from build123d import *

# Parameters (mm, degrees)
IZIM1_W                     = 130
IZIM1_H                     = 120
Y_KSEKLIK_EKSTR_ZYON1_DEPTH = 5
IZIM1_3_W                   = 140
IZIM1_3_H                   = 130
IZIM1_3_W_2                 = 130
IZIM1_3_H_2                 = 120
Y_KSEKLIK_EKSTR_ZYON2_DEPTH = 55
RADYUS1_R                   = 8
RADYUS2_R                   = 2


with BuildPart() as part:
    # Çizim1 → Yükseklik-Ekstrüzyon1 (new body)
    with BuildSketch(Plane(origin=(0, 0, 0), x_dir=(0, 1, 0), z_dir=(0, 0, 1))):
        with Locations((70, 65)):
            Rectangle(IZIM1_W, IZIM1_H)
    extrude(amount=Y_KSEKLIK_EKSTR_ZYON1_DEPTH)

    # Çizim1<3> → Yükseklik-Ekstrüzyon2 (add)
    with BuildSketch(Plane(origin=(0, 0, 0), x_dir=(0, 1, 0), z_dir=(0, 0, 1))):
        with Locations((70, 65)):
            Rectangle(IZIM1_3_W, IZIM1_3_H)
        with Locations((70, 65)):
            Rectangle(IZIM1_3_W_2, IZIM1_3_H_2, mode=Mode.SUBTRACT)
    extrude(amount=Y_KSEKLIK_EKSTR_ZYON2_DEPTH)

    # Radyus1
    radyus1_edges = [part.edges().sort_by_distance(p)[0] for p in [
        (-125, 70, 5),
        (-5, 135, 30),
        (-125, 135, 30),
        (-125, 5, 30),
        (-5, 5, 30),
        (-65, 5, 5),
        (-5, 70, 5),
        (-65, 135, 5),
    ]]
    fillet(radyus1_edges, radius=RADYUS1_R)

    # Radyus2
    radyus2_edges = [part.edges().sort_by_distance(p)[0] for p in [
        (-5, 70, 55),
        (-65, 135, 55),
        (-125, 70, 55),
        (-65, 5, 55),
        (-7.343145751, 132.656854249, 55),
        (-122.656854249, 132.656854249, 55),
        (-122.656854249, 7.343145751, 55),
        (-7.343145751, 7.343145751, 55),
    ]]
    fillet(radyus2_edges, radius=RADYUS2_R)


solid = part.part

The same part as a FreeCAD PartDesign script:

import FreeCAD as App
import Part
import Sketcher
from FreeCAD import Vector


def edges_at(feature, points):
    """Names of the edges that pass closest to the given points."""
    edges = feature.Shape.Edges
    near = lambda p: min(range(len(edges)), key=lambda i: edges[i].distToShape(Part.Vertex(*p))[0])
    return sorted({f"Edge{near(p) + 1}" for p in points})

doc = App.newDocument("Part")
body = doc.addObject("PartDesign::Body", "Body")

# Sketch on XY plane
sketch1 = doc.addObject("Sketcher::SketchObject", "Sketch")
body.addObject(sketch1)
sketch1.AttachmentSupport = (doc.XY_Plane, [""])
sketch1.MapMode = "FlatFace"
sketch1.addGeometry(Part.LineSegment(Vector(-125, 5, 0), Vector(-5, 5, 0)), False)
sketch1.addGeometry(Part.LineSegment(Vector(-5, 5, 0), Vector(-5, 135, 0)), False)
sketch1.addGeometry(Part.LineSegment(Vector(-5, 135, 0), Vector(-125, 135, 0)), False)
sketch1.addGeometry(Part.LineSegment(Vector(-125, 135, 0), Vector(-125, 5, 0)), False)
sketch1.addConstraint(Sketcher.Constraint("Coincident", 0, 2, 1, 1))
sketch1.addConstraint(Sketcher.Constraint("Coincident", 1, 2, 2, 1))
sketch1.addConstraint(Sketcher.Constraint("Coincident", 2, 2, 3, 1))
sketch1.addConstraint(Sketcher.Constraint("Coincident", 3, 2, 0, 1))
sketch1.addConstraint(Sketcher.Constraint("Horizontal", 0))
sketch1.addConstraint(Sketcher.Constraint("Vertical", 1))
sketch1.addConstraint(Sketcher.Constraint("Horizontal", 2))
sketch1.addConstraint(Sketcher.Constraint("Vertical", 3))
sketch1.addConstraint(Sketcher.Constraint("DistanceX", 0, 1, 0, 2, 120.0))
sketch1.addConstraint(Sketcher.Constraint("DistanceY", 1, 1, 1, 2, 130.0))
sketch1.addConstraint(Sketcher.Constraint("DistanceX", 0, 2, -1, 1, 5.0))
sketch1.addConstraint(Sketcher.Constraint("DistanceY", -1, 1, 0, 2, 5.0))
pad1 = doc.addObject("PartDesign::Pad", "Pad")
body.addObject(pad1)
pad1.Profile = sketch1
pad1.Length = 5

# Sketch on XY plane
sketch2 = doc.addObject("Sketcher::SketchObject", "Sketch001")
body.addObject(sketch2)
sketch2.AttachmentSupport = (doc.XY_Plane, [""])
sketch2.MapMode = "FlatFace"
sketch2.addGeometry(Part.LineSegment(Vector(-130, 0, 0), Vector(0, 0, 0)), False)
sketch2.addGeometry(Part.LineSegment(Vector(0, 0, 0), Vector(0, 140, 0)), False)
sketch2.addGeometry(Part.LineSegment(Vector(0, 140, 0), Vector(-130, 140, 0)), False)
sketch2.addGeometry(Part.LineSegment(Vector(-130, 140, 0), Vector(-130, 0, 0)), False)
sketch2.addGeometry(Part.LineSegment(Vector(-5, 135, 0), Vector(-5, 5, 0)), False)
sketch2.addGeometry(Part.LineSegment(Vector(-5, 5, 0), Vector(-125, 5, 0)), False)
sketch2.addGeometry(Part.LineSegment(Vector(-125, 5, 0), Vector(-125, 135, 0)), False)
sketch2.addGeometry(Part.LineSegment(Vector(-125, 135, 0), Vector(-5, 135, 0)), False)
sketch2.addConstraint(Sketcher.Constraint("Coincident", 0, 2, 1, 1))
sketch2.addConstraint(Sketcher.Constraint("Coincident", 1, 2, 2, 1))
sketch2.addConstraint(Sketcher.Constraint("Coincident", 2, 2, 3, 1))
sketch2.addConstraint(Sketcher.Constraint("Coincident", 3, 2, 0, 1))
sketch2.addConstraint(Sketcher.Constraint("Coincident", 4, 2, 5, 1))
sketch2.addConstraint(Sketcher.Constraint("Coincident", 5, 2, 6, 1))
sketch2.addConstraint(Sketcher.Constraint("Coincident", 6, 2, 7, 1))
sketch2.addConstraint(Sketcher.Constraint("Coincident", 7, 2, 4, 1))
sketch2.addConstraint(Sketcher.Constraint("Horizontal", 0))
sketch2.addConstraint(Sketcher.Constraint("Vertical", 1))
sketch2.addConstraint(Sketcher.Constraint("Horizontal", 2))
sketch2.addConstraint(Sketcher.Constraint("Vertical", 3))
sketch2.addConstraint(Sketcher.Constraint("Vertical", 4))
sketch2.addConstraint(Sketcher.Constraint("Horizontal", 5))
sketch2.addConstraint(Sketcher.Constraint("Vertical", 6))
sketch2.addConstraint(Sketcher.Constraint("Horizontal", 7))
sketch2.addConstraint(Sketcher.Constraint("Coincident", 0, 2, -1, 1))
sketch2.addConstraint(Sketcher.Constraint("Equal", 2, 4))
sketch2.addConstraint(Sketcher.Constraint("DistanceX", 0, 1, 0, 2, 130.0))
sketch2.addConstraint(Sketcher.Constraint("DistanceX", 5, 2, 5, 1, 120.0))
sketch2.addConstraint(Sketcher.Constraint("DistanceY", 1, 1, 1, 2, 140.0))
sketch2.addConstraint(Sketcher.Constraint("DistanceX", 4, 2, -1, 1, 5.0))
sketch2.addConstraint(Sketcher.Constraint("DistanceY", -1, 1, 4, 2, 5.0))
pad2 = doc.addObject("PartDesign::Pad", "Pad001")
body.addObject(pad2)
pad2.Profile = sketch2
pad2.Length = 55
doc.recompute()

fillet = doc.addObject("PartDesign::Fillet", "Fillet")
body.addObject(fillet)
fillet.Base = (pad2, edges_at(pad2, [
    (-125, 70, 5),
    (-5, 135, 30),
    (-125, 135, 30),
    (-125, 5, 30),
    (-5, 5, 30),
    (-65, 5, 5),
    (-5, 70, 5),
    (-65, 135, 5),
]))
fillet.Radius = 8
doc.recompute()

fillet2 = doc.addObject("PartDesign::Fillet", "Fillet001")
body.addObject(fillet2)
fillet2.Base = (fillet, edges_at(fillet, [
    (-5, 70, 55),
    (-65, 135, 55),
    (-125, 70, 55),
    (-65, 5, 55),
    (-7.343, 132.657, 55),
    (-122.657, 132.657, 55),
    (-122.657, 7.343, 55),
    (-7.343, 7.343, 55),
]))
fillet2.Radius = 2

doc.recompute()
